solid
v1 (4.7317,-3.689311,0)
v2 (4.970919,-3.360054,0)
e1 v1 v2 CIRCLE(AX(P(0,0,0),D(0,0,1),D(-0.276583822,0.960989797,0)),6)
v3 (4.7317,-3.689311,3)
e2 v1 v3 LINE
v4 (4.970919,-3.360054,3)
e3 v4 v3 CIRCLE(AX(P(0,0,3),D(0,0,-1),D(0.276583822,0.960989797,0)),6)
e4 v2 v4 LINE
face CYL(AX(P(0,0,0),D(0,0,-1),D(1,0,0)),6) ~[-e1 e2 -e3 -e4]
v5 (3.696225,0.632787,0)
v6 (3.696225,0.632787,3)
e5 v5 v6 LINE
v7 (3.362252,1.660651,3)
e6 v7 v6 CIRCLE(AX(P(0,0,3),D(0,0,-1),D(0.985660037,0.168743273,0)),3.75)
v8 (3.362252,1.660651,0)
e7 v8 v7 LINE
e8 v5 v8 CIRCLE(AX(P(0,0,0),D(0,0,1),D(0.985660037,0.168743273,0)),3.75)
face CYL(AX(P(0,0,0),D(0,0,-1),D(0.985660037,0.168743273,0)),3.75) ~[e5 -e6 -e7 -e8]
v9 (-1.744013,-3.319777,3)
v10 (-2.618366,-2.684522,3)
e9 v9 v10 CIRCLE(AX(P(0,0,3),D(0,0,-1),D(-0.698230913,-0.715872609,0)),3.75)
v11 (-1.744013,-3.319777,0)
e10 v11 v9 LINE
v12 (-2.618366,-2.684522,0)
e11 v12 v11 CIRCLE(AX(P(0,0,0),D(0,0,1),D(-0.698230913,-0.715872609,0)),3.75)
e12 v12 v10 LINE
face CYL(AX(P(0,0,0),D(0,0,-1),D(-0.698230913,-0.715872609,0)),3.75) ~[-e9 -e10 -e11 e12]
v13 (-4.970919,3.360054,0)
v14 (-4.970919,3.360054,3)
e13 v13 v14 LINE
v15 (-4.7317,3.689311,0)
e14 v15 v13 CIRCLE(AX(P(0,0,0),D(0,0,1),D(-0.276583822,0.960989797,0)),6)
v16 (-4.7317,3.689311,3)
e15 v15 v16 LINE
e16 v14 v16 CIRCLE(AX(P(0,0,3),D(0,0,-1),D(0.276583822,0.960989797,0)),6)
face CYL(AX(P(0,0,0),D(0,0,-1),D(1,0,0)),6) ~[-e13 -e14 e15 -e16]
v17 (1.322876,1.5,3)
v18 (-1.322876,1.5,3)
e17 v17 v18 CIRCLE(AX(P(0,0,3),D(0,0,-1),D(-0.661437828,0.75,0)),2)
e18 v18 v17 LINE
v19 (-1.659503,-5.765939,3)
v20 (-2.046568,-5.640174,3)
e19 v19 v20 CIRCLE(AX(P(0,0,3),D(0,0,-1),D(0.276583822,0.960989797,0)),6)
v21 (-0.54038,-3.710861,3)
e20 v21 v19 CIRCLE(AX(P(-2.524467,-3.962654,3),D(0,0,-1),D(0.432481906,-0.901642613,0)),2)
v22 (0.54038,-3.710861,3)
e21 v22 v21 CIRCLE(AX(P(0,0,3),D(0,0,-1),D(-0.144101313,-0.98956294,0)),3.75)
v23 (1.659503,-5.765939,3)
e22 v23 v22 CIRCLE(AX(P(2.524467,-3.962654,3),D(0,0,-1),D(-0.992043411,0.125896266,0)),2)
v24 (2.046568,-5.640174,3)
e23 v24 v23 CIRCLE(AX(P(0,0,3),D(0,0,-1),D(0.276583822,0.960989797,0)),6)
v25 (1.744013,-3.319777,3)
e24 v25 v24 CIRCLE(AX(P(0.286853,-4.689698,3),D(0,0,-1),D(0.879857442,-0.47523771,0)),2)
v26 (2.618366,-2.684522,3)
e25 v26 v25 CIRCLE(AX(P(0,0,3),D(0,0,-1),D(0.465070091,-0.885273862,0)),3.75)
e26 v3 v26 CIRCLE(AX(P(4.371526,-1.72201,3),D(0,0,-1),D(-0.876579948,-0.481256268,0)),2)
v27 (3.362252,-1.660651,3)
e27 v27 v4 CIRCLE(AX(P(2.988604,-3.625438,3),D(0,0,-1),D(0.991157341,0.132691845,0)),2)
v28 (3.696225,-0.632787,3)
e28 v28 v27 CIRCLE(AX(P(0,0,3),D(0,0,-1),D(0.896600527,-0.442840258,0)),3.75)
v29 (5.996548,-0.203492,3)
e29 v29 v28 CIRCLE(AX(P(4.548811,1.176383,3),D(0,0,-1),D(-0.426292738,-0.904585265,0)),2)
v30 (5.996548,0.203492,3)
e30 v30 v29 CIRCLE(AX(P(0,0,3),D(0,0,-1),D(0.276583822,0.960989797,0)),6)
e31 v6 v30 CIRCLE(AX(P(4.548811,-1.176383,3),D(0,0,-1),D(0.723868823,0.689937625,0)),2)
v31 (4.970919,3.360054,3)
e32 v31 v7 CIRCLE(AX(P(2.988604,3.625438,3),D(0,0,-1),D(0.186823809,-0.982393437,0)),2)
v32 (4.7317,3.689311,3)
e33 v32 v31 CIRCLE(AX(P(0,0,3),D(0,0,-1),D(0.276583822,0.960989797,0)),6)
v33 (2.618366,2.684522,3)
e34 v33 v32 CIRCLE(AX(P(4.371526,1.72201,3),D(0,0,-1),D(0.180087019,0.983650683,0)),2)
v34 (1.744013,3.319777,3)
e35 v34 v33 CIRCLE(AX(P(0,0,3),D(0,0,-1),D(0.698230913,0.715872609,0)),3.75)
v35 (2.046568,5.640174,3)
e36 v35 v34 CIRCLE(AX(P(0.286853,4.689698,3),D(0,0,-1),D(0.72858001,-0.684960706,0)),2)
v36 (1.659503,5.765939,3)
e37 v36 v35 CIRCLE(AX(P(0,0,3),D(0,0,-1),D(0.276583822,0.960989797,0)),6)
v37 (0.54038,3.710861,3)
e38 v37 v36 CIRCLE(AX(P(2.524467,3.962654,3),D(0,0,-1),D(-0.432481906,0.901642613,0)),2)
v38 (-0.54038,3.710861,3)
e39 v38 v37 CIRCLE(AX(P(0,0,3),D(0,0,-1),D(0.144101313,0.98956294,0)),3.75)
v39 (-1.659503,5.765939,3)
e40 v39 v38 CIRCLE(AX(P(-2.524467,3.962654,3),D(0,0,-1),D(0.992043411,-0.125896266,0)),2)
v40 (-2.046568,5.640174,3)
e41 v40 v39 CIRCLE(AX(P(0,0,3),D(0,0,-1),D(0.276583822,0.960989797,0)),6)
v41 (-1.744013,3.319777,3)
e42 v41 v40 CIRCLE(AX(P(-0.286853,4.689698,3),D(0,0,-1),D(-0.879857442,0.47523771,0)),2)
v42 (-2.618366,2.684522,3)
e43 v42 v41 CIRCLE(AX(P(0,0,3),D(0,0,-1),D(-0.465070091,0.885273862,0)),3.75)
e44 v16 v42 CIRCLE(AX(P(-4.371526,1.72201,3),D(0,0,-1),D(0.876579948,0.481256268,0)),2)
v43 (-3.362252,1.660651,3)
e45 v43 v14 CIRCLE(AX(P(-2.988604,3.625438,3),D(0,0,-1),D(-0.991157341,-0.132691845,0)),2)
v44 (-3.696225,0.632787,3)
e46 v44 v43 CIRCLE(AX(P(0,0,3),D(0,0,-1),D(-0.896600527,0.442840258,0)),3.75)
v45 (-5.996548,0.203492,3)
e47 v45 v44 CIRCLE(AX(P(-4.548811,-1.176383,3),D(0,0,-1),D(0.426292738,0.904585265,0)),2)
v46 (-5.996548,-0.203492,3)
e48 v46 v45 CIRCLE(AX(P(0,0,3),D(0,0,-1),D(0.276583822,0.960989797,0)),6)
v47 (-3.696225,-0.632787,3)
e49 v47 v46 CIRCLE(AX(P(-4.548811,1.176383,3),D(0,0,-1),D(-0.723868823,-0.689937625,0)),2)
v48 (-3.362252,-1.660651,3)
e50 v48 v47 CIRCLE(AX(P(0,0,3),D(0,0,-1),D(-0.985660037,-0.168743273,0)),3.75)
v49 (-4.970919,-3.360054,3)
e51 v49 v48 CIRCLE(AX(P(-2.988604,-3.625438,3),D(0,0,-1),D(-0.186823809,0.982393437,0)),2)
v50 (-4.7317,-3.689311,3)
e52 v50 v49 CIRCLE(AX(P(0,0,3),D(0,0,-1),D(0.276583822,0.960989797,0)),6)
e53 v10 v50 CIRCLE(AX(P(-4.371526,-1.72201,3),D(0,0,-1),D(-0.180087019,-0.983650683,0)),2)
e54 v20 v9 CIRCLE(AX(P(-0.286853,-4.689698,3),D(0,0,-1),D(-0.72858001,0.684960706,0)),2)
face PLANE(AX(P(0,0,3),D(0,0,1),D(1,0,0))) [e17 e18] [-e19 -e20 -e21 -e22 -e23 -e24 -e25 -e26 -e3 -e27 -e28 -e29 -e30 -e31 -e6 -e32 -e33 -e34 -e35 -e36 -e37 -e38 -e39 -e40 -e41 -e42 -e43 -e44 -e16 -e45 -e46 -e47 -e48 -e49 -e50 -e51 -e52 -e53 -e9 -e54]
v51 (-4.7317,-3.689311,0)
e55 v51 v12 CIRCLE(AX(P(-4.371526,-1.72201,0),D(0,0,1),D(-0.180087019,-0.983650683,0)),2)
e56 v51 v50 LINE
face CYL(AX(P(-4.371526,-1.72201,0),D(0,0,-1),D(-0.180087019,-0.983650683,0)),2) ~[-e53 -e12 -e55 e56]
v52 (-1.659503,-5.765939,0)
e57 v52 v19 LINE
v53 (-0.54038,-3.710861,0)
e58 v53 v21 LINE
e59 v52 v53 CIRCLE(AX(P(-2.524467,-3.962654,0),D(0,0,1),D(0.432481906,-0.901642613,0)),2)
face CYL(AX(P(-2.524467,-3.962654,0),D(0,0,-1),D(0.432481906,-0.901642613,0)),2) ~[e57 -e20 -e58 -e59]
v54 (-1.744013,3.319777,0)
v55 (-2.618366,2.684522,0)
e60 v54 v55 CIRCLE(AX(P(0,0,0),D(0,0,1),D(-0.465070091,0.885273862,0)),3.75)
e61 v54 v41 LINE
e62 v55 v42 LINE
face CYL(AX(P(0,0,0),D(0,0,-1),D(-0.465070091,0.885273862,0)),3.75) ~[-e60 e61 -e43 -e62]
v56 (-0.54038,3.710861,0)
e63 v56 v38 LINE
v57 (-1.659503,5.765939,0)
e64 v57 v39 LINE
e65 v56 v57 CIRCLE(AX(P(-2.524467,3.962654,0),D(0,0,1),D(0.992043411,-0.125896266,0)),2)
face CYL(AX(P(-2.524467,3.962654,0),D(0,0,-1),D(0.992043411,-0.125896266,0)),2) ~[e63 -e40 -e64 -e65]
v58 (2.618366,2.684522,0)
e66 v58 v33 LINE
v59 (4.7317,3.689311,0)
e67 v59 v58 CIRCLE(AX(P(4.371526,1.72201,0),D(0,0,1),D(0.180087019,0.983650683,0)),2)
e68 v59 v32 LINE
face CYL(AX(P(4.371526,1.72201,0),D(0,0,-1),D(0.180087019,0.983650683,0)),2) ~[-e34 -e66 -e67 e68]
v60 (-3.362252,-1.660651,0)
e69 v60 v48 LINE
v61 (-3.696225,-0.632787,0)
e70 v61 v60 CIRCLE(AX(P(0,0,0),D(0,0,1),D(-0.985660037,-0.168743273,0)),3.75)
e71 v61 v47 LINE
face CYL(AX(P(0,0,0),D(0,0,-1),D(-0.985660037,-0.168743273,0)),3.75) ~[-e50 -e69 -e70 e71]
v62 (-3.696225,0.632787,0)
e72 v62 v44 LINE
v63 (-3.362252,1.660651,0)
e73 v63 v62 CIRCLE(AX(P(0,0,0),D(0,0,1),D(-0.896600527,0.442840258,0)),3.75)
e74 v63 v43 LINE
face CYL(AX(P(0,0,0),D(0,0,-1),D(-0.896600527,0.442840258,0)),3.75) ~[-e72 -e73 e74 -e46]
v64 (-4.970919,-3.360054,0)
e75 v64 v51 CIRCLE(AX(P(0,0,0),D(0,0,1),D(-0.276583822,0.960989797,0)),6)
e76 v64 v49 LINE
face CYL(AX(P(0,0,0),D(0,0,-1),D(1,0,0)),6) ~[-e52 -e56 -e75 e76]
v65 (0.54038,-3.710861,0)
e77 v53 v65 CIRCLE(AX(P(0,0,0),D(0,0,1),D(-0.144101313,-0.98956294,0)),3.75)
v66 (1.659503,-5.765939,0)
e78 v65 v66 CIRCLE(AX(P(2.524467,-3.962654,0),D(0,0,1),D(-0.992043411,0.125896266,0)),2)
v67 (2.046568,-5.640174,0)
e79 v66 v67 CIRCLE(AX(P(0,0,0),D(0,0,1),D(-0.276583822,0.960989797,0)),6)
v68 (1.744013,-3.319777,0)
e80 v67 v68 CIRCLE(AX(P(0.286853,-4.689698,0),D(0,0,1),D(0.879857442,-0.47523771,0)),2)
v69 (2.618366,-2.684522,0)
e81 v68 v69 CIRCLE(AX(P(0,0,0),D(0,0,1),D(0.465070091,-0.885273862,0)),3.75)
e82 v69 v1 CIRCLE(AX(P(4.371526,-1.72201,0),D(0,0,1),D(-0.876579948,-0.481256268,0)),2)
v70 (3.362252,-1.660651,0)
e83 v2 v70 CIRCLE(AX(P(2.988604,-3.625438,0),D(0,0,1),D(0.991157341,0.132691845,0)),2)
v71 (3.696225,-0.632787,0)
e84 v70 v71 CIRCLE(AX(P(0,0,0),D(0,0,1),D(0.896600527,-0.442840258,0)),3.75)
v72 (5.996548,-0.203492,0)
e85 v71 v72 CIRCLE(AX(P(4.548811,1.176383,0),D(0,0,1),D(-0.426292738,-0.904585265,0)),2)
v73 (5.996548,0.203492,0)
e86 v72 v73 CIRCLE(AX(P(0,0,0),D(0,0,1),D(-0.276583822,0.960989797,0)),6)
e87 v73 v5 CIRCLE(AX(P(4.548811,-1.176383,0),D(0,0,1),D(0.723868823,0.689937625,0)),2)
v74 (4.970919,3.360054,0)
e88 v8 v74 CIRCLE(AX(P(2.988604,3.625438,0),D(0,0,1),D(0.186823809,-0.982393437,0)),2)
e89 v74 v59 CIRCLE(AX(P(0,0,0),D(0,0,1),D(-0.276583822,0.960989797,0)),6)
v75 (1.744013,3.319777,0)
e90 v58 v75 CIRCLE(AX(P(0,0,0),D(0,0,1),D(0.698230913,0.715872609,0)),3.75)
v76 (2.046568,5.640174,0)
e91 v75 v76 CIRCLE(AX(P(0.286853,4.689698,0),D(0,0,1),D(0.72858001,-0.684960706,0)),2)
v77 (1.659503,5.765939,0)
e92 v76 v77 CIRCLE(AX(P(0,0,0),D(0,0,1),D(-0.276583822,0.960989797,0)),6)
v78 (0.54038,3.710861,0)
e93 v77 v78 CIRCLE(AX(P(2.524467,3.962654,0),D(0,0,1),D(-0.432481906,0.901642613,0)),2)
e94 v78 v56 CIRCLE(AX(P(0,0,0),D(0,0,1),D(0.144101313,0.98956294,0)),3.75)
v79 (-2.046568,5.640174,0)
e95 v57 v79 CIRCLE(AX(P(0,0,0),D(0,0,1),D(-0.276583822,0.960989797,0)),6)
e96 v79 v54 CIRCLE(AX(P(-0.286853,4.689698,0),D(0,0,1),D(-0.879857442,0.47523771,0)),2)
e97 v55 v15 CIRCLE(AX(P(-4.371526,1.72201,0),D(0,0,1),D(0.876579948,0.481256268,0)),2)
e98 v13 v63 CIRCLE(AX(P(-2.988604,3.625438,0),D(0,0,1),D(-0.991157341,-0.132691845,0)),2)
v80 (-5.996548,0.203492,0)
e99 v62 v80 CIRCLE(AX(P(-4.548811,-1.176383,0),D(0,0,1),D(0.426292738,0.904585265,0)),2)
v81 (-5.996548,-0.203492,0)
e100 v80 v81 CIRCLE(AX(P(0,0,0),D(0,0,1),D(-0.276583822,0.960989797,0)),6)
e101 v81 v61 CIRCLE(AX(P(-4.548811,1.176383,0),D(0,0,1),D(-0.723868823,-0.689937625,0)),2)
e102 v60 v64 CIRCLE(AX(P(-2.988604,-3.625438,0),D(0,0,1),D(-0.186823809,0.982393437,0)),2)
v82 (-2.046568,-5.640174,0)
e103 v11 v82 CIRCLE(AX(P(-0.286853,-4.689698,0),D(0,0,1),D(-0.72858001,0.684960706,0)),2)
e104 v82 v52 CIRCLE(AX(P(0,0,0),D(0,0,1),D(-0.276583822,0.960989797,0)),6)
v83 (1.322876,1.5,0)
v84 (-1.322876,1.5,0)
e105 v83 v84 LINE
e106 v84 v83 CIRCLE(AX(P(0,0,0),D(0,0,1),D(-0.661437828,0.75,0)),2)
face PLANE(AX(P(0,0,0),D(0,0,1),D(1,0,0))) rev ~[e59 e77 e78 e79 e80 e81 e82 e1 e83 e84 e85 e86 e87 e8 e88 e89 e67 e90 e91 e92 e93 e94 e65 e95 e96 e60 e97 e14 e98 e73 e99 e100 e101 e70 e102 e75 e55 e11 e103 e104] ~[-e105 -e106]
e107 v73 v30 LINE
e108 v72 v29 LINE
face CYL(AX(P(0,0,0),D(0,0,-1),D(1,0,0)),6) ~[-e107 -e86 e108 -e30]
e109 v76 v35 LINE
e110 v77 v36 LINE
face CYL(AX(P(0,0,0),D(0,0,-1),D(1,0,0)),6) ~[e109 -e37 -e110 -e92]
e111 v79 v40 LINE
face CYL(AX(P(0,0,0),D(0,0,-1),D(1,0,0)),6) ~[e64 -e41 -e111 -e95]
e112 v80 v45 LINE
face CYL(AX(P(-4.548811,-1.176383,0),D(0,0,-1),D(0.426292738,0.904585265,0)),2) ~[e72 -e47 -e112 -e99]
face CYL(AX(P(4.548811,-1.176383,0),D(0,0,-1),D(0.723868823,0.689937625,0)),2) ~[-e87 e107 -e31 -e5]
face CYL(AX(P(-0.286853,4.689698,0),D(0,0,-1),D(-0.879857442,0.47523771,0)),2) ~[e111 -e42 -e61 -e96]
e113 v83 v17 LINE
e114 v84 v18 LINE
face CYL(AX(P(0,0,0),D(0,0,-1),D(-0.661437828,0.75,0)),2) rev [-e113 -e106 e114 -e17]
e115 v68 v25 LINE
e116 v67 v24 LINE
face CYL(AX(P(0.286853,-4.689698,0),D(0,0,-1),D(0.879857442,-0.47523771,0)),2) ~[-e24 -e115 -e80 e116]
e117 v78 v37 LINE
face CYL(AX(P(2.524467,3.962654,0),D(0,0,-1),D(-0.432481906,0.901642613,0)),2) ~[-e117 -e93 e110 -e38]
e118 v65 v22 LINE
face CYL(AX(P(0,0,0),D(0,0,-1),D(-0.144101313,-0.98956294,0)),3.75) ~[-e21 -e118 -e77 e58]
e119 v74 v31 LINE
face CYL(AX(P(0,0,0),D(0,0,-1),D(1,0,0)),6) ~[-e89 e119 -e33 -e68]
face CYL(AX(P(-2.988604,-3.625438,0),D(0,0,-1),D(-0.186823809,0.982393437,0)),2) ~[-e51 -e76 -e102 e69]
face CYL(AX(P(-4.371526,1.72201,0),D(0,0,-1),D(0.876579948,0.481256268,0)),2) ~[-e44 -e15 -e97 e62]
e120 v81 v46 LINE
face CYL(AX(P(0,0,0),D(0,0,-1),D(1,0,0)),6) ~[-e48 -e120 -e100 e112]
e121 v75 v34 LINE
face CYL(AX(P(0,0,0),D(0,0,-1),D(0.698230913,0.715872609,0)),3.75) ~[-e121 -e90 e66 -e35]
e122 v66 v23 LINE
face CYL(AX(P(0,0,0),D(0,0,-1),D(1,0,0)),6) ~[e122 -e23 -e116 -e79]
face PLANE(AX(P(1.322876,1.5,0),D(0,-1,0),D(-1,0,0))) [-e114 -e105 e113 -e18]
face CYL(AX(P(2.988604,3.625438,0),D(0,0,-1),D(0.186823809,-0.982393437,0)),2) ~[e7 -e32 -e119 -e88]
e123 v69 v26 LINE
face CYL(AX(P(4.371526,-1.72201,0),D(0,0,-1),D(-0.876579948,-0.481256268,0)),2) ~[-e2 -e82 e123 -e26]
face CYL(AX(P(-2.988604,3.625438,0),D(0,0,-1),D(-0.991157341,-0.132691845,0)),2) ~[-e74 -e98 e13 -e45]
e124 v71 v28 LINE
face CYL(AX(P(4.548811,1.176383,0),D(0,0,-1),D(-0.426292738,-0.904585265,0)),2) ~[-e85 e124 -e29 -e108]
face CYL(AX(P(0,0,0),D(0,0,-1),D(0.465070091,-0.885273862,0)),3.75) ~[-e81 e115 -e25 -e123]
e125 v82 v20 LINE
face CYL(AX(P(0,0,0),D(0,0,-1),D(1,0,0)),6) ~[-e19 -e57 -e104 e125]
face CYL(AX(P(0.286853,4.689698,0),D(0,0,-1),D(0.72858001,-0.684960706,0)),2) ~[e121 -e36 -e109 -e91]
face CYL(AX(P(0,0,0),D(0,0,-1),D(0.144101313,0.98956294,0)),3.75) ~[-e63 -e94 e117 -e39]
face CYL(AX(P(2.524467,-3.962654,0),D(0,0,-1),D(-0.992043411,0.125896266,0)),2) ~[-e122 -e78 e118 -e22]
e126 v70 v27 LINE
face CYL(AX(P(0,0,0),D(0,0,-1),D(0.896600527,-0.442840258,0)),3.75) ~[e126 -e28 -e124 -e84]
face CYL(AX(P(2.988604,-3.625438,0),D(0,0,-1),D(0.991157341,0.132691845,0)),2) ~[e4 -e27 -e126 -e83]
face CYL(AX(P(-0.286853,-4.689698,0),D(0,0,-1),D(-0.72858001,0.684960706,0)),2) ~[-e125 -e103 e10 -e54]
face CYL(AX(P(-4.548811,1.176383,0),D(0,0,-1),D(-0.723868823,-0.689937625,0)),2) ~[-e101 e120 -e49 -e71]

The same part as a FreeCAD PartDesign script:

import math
import FreeCAD as App
import Part
import Sketcher

V = App.Vector
Q = App.Units.Quantity

doc = App.newDocument("Part")
body = doc.addObject("PartDesign::Body", "Body")

# Sketch on XY plane
sketch1 = body.newObject("Sketcher::SketchObject", "Sketch")
sketch1.AttachmentSupport = (doc.getObject("XY_Plane"), [""])
sketch1.MapMode = "FlatFace"
sketch1.addGeometry(Part.Circle(V(0, 0, 0), V(0, 0, 1), 6), False)
sketch1.addConstraint([
    Sketcher.Constraint("Coincident", 0, 3, -1, 1),
    Sketcher.Constraint("Diameter", 0, Q("12 mm")),
])
pad1 = body.newObject("PartDesign::Pad", "Pad")
pad1.Profile = sketch1
pad1.Length = 3

# Sketch on XY plane
sketch2 = body.newObject("Sketcher::SketchObject", "Sketch001")
sketch2.AttachmentSupport = (doc.getObject("XY_Plane"), [""])
sketch2.MapMode = "FlatFace"
sketch2.addGeometry([
    Part.ArcOfCircle(Part.Circle(V(2.524467, 3.962654, 0), V(0, 0, 1), 2), math.radians(115.625172), math.radians(187.232517)),
    Part.ArcOfCircle(Part.Circle(V(0, 0, 0), V(0, 0, 1), 3.75), math.radians(81.714758), math.radians(98.285242)),
    Part.ArcOfCircle(Part.Circle(V(-2.524467, 3.962654, 0), V(0, 0, 1), 2), math.radians(-7.232517), math.radians(64.374828)),
    Part.ArcOfCircle(Part.Circle(V(0, 0, 0), V(0, 0, 1), 6), math.radians(73.943578), math.radians(106.056422)),
], False)
sketch2.addConstraint([
    Sketcher.Constraint("Coincident", 0, 2, 1, 1),
    Sketcher.Constraint("Coincident", 1, 2, 2, 1),
    Sketcher.Constraint("Coincident", 2, 2, 3, 2),
    Sketcher.Constraint("Coincident", 3, 1, 0, 1),
    Sketcher.Constraint("Coincident", 1, 3, -1, 1),
    Sketcher.Constraint("Coincident", 3, 3, -1, 1),
    Sketcher.Constraint("Equal", 0, 2),
    Sketcher.Constraint("Symmetric", 0, 3, 2, 3, -2),
    Sketcher.Constraint("Radius", 0, Q("2 mm")),
    Sketcher.Constraint("Radius", 3, Q("6 mm")),
    Sketcher.Constraint("Radius", 1, Q("3.75 mm")),
    Sketcher.Constraint("DistanceX", -1, 1, 0, 2, Q("0.54038 mm")),
    Sketcher.Constraint("DistanceY", -1, 1, 2, 2, Q("5.765939 mm")),
])
pocket1 = body.newObject("PartDesign::Pocket", "Pocket")
pocket1.Profile = sketch2
pocket1.Type = "ThroughAll"
pocket1.Reversed = True
doc.recompute()

polarpattern = body.newObject("PartDesign::PolarPattern", "PolarPattern")
polarpattern.Originals = [pocket1]
polarpattern.Axis = (doc.getObject("Z_Axis"), [""])
polarpattern.Angle = 360
polarpattern.Occurrences = 10
body.Tip = polarpattern

# Sketch on XY plane
sketch3 = body.newObject("Sketcher::SketchObject", "Sketch002")
sketch3.AttachmentSupport = (doc.getObject("XY_Plane"), [""])
sketch3.MapMode = "FlatFace"
sketch3.addGeometry([
    Part.LineSegment(V(-1.322876, 1.5, 0), V(1.322876, 1.5, 0)),
    Part.ArcOfCircle(Part.Circle(V(0, 0, 0), V(0, 0, 1), 2), math.radians(131.409622), math.radians(408.590378)),
], False)
sketch3.addConstraint([
    Sketcher.Constraint("Coincident", 0, 1, 1, 1),
    Sketcher.Constraint("Coincident", 1, 2, 0, 2),
    Sketcher.Constraint("Horizontal", 0),
    Sketcher.Constraint("Coincident", 1, 3, -1, 1),
    Sketcher.Constraint("Radius", 1, Q("2 mm")),
    Sketcher.Constraint("DistanceY", -1, 1, 0, 1, Q("1.5 mm")),
])
pocket2 = body.newObject("PartDesign::Pocket", "Pocket001")
pocket2.Profile = sketch3
pocket2.Type = "ThroughAll"
pocket2.Reversed = True

doc.recompute()
